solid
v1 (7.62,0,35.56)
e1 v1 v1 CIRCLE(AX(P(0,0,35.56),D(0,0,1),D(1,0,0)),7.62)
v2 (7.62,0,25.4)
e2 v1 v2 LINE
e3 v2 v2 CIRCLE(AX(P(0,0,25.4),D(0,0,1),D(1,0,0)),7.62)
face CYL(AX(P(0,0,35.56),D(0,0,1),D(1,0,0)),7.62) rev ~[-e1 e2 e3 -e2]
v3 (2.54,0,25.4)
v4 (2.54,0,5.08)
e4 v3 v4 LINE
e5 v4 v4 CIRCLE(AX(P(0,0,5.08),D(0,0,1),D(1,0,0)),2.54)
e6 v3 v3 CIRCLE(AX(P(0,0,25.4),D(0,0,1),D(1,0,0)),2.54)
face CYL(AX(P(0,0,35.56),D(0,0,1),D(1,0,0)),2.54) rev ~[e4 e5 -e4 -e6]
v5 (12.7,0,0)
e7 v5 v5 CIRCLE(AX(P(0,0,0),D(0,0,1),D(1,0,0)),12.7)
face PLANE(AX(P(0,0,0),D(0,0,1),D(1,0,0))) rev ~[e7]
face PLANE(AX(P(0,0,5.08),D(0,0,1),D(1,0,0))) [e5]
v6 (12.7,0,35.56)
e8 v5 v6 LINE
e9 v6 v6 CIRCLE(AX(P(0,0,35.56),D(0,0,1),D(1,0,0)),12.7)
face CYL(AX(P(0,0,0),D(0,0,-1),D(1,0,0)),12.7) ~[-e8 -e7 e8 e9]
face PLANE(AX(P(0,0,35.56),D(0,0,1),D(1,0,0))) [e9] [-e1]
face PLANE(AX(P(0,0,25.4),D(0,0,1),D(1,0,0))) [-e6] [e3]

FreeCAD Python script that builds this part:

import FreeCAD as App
import Part
import Sketcher

V = App.Vector
Q = App.Units.Quantity

doc = App.newDocument("Part")
body = doc.addObject("PartDesign::Body", "Body")

# Sketch on XY plane
sketch1 = body.newObject("Sketcher::SketchObject", "Sketch")
sketch1.AttachmentSupport = (doc.getObject("XY_Plane"), [""])
sketch1.MapMode = "FlatFace"
sketch1.addGeometry(Part.Circle(V(0, 0, 0), V(0, 0, 1), 13), False)
sketch1.addConstraint([
    Sketcher.Constraint("Coincident", 0, 3, -1, 1),
    Sketcher.Constraint("Diameter", 0, Q("1 in")),
])
pad1 = body.newObject("PartDesign::Pad", "Pad")
pad1.Profile = sketch1
pad1.Length = Q("1.4 in")

# Sketch on XY plane
sketch2 = body.newObject("Sketcher::SketchObject", "Sketch001")
sketch2.AttachmentSupport = (doc.getObject("XY_Plane"), [""])
sketch2.MapMode = "FlatFace"
sketch2.AttachmentOffset = App.Placement(V(0, 0, 1.4 * 25.4), App.Rotation())
sketch2.addGeometry([
    Part.Circle(V(0, 0, 0), V(0, 0, 1), 7.6),
    Part.Circle(V(0, 0, 0), V(0, 0, 1), 2.5),
], False)
sketch2.addConstraint([
    Sketcher.Constraint("Coincident", 0, 3, -1, 1),
    Sketcher.Constraint("Coincident", 1, 3, -1, 1),
    Sketcher.Constraint("Diameter", 0, Q("0.6 in")),
    Sketcher.Constraint("Diameter", 1, Q("0.2 in")),
])
pocket1 = body.newObject("PartDesign::Pocket", "Pocket")
pocket1.Profile = sketch2
pocket1.Length = Q("0.4 in")

# Sketch on XY plane
sketch3 = body.newObject("Sketcher::SketchObject", "Sketch002")
sketch3.AttachmentSupport = (doc.getObject("XY_Plane"), [""])
sketch3.MapMode = "FlatFace"
sketch3.AttachmentOffset = App.Placement(V(0, 0, 1.4 * 25.4), App.Rotation())
sketch3.addGeometry(Part.Circle(V(0, 0, 0), V(0, 0, 1), 2.5), False)
sketch3.addConstraint([
    Sketcher.Constraint("Coincident", 0, 3, -1, 1),
    Sketcher.Constraint("Diameter", 0, Q("0.2 in")),
])
pocket2 = body.newObject("PartDesign::Pocket", "Pocket001")
pocket2.Profile = sketch3
pocket2.Length = Q("1.2 in")

doc.recompute()
